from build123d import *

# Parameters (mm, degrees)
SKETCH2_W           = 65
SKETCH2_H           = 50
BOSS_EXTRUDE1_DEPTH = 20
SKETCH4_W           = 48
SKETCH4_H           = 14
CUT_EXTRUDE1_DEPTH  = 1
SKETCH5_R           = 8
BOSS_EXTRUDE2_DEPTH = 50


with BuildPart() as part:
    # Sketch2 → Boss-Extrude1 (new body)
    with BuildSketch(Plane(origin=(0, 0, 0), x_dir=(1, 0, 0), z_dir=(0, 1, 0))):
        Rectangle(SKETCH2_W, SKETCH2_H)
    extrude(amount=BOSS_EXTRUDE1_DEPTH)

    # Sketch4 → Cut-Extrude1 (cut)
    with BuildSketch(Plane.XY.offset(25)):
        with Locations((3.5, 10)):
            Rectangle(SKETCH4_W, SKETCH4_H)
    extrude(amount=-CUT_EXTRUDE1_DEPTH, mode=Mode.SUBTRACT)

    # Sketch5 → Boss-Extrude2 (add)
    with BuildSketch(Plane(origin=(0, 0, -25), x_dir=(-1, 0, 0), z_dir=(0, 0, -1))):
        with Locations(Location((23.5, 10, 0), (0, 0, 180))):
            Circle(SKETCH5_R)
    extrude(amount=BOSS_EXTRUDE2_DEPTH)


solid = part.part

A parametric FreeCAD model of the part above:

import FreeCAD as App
import Part
import Sketcher
from FreeCAD import Vector

doc = App.newDocument("Part")
body = doc.addObject("PartDesign::Body", "Body")

# Sketch on XZ plane
sketch1 = body.newObject("Sketcher::SketchObject", "Sketch")
sketch1.AttachmentSupport = (doc.getObject("XZ_Plane"), [""])
sketch1.MapMode = "FlatFace"
sketch1.addGeometry([
    Part.LineSegment(Vector(-32.5, -25, 0), Vector(-32.5, 25, 0)),
    Part.LineSegment(Vector(-32.5, 25, 0), Vector(32.5, 25, 0)),
    Part.LineSegment(Vector(32.5, 25, 0), Vector(32.5, -25, 0)),
    Part.LineSegment(Vector(32.5, -25, 0), Vector(-32.5, -25, 0)),
], False)
sketch1.addConstraint([
    Sketcher.Constraint("Coincident", 0, 2, 1, 1),
    Sketcher.Constraint("Coincident", 1, 2, 2, 1),
    Sketcher.Constraint("Coincident", 2, 2, 3, 1),
    Sketcher.Constraint("Coincident", 3, 2, 0, 1),
    Sketcher.Constraint("Vertical", 0),
    Sketcher.Constraint("Horizontal", 1),
    Sketcher.Constraint("Vertical", 2),
    Sketcher.Constraint("Horizontal", 3),
    Sketcher.Constraint("Symmetric", 0, 2, 2, 2, -1, 1),
    Sketcher.Constraint("DistanceX", 1, 1, 1, 2, 65.0),
    Sketcher.Constraint("DistanceY", 0, 1, 0, 2, 50.0),
])
pad1 = body.newObject("PartDesign::Pad", "Pad")
pad1.Profile = sketch1
pad1.Length = 20
pad1.Reversed = True

# Sketch on XY plane
sketch2 = body.newObject("Sketcher::SketchObject", "Sketch001")
sketch2.AttachmentSupport = (doc.getObject("XY_Plane"), [""])
sketch2.MapMode = "FlatFace"
sketch2.AttachmentOffset = App.Placement(Vector(0, 0, 25), App.Rotation())
sketch2.addGeometry([
    Part.LineSegment(Vector(-20.5, 17, 0), Vector(-20.5, 3, 0)),
    Part.LineSegment(Vector(-20.5, 3, 0), Vector(27.5, 3, 0)),
    Part.LineSegment(Vector(27.5, 3, 0), Vector(27.5, 17, 0)),
    Part.LineSegment(Vector(27.5, 17, 0), Vector(-20.5, 17, 0)),
], False)
sketch2.addConstraint([
    Sketcher.Constraint("Coincident", 0, 2, 1, 1),
    Sketcher.Constraint("Coincident", 1, 2, 2, 1),
    Sketcher.Constraint("Coincident", 2, 2, 3, 1),
    Sketcher.Constraint("Coincident", 3, 2, 0, 1),
    Sketcher.Constraint("Vertical", 0),
    Sketcher.Constraint("Horizontal", 1),
    Sketcher.Constraint("Vertical", 2),
    Sketcher.Constraint("Horizontal", 3),
    Sketcher.Constraint("DistanceX", 1, 1, 1, 2, 48.0),
    Sketcher.Constraint("DistanceY", 0, 2, 0, 1, 14.0),
    Sketcher.Constraint("DistanceY", -1, 1, 0, 2, 3.0),
    Sketcher.Constraint("DistanceX", 0, 2, -1, 1, 20.5),
])
pocket1 = body.newObject("PartDesign::Pocket", "Pocket")
pocket1.Profile = sketch2
pocket1.Length = 1

# Sketch on XY plane
sketch3 = body.newObject("Sketcher::SketchObject", "Sketch002")
sketch3.AttachmentSupport = (doc.getObject("XY_Plane"), [""])
sketch3.MapMode = "FlatFace"
sketch3.AttachmentOffset = App.Placement(Vector(0, 0, -25), App.Rotation())
sketch3.addGeometry(Part.Circle(Vector(-23.5, 10, 0), Vector(0, 0, 1), 8), False)
sketch3.addConstraint([
    Sketcher.Constraint("Diameter", 0, 16.0),
    Sketcher.Constraint("DistanceY", -1, 1, 0, 3, 10.0),
    Sketcher.Constraint("DistanceX", 0, 3, -1, 1, 23.5),
])
pad2 = body.newObject("PartDesign::Pad", "Pad001")
pad2.Profile = sketch3
pad2.Length = 50
pad2.Reversed = True

doc.recompute()
